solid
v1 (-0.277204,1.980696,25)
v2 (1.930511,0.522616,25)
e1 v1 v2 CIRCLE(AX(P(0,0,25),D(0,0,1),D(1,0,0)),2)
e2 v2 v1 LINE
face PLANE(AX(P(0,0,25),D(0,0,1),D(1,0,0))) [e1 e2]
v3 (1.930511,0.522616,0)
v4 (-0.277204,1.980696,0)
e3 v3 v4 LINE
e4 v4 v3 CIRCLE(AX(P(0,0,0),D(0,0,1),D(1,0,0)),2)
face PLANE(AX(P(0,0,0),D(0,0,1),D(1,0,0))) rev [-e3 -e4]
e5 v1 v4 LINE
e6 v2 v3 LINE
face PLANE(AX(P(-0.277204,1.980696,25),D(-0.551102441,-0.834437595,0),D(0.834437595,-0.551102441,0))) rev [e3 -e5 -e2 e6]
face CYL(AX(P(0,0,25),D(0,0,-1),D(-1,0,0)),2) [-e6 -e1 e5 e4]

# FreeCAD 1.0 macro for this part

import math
import FreeCAD as App
import Part
import Sketcher

V = App.Vector

doc = App.newDocument("Part")
body = doc.addObject("PartDesign::Body", "Body")

# Sketch on XY plane
sketch1 = body.newObject("Sketcher::SketchObject", "Sketch")
sketch1.AttachmentSupport = (doc.getObject("XY_Plane"), [""])
sketch1.MapMode = "FlatFace"
sketch1.addGeometry([
    Part.LineSegment(V(1.9, 0.5, 0), V(-0.3, 2, 0)),
    Part.ArcOfCircle(Part.Circle(V(0, 0, 0), V(0, 0, 1), 2), math.radians(98), math.radians(375)),
], False)
sketch1.addConstraint([
    Sketcher.Constraint("Coincident", 0, 1, 1, 2),
    Sketcher.Constraint("Coincident", 1, 1, 0, 2),
    Sketcher.Constraint("Coincident", 1, 3, -1, 1),
    Sketcher.Constraint("Radius", 1, 2.0),
    Sketcher.Constraint("Distance", 0, 2.645751),
    Sketcher.Constraint("DistanceX", -1, 1, 0, 1, 1.930511),
])
pad1 = body.newObject("PartDesign::Pad", "Pad")
pad1.Profile = sketch1
pad1.Length = 25

doc.recompute()
